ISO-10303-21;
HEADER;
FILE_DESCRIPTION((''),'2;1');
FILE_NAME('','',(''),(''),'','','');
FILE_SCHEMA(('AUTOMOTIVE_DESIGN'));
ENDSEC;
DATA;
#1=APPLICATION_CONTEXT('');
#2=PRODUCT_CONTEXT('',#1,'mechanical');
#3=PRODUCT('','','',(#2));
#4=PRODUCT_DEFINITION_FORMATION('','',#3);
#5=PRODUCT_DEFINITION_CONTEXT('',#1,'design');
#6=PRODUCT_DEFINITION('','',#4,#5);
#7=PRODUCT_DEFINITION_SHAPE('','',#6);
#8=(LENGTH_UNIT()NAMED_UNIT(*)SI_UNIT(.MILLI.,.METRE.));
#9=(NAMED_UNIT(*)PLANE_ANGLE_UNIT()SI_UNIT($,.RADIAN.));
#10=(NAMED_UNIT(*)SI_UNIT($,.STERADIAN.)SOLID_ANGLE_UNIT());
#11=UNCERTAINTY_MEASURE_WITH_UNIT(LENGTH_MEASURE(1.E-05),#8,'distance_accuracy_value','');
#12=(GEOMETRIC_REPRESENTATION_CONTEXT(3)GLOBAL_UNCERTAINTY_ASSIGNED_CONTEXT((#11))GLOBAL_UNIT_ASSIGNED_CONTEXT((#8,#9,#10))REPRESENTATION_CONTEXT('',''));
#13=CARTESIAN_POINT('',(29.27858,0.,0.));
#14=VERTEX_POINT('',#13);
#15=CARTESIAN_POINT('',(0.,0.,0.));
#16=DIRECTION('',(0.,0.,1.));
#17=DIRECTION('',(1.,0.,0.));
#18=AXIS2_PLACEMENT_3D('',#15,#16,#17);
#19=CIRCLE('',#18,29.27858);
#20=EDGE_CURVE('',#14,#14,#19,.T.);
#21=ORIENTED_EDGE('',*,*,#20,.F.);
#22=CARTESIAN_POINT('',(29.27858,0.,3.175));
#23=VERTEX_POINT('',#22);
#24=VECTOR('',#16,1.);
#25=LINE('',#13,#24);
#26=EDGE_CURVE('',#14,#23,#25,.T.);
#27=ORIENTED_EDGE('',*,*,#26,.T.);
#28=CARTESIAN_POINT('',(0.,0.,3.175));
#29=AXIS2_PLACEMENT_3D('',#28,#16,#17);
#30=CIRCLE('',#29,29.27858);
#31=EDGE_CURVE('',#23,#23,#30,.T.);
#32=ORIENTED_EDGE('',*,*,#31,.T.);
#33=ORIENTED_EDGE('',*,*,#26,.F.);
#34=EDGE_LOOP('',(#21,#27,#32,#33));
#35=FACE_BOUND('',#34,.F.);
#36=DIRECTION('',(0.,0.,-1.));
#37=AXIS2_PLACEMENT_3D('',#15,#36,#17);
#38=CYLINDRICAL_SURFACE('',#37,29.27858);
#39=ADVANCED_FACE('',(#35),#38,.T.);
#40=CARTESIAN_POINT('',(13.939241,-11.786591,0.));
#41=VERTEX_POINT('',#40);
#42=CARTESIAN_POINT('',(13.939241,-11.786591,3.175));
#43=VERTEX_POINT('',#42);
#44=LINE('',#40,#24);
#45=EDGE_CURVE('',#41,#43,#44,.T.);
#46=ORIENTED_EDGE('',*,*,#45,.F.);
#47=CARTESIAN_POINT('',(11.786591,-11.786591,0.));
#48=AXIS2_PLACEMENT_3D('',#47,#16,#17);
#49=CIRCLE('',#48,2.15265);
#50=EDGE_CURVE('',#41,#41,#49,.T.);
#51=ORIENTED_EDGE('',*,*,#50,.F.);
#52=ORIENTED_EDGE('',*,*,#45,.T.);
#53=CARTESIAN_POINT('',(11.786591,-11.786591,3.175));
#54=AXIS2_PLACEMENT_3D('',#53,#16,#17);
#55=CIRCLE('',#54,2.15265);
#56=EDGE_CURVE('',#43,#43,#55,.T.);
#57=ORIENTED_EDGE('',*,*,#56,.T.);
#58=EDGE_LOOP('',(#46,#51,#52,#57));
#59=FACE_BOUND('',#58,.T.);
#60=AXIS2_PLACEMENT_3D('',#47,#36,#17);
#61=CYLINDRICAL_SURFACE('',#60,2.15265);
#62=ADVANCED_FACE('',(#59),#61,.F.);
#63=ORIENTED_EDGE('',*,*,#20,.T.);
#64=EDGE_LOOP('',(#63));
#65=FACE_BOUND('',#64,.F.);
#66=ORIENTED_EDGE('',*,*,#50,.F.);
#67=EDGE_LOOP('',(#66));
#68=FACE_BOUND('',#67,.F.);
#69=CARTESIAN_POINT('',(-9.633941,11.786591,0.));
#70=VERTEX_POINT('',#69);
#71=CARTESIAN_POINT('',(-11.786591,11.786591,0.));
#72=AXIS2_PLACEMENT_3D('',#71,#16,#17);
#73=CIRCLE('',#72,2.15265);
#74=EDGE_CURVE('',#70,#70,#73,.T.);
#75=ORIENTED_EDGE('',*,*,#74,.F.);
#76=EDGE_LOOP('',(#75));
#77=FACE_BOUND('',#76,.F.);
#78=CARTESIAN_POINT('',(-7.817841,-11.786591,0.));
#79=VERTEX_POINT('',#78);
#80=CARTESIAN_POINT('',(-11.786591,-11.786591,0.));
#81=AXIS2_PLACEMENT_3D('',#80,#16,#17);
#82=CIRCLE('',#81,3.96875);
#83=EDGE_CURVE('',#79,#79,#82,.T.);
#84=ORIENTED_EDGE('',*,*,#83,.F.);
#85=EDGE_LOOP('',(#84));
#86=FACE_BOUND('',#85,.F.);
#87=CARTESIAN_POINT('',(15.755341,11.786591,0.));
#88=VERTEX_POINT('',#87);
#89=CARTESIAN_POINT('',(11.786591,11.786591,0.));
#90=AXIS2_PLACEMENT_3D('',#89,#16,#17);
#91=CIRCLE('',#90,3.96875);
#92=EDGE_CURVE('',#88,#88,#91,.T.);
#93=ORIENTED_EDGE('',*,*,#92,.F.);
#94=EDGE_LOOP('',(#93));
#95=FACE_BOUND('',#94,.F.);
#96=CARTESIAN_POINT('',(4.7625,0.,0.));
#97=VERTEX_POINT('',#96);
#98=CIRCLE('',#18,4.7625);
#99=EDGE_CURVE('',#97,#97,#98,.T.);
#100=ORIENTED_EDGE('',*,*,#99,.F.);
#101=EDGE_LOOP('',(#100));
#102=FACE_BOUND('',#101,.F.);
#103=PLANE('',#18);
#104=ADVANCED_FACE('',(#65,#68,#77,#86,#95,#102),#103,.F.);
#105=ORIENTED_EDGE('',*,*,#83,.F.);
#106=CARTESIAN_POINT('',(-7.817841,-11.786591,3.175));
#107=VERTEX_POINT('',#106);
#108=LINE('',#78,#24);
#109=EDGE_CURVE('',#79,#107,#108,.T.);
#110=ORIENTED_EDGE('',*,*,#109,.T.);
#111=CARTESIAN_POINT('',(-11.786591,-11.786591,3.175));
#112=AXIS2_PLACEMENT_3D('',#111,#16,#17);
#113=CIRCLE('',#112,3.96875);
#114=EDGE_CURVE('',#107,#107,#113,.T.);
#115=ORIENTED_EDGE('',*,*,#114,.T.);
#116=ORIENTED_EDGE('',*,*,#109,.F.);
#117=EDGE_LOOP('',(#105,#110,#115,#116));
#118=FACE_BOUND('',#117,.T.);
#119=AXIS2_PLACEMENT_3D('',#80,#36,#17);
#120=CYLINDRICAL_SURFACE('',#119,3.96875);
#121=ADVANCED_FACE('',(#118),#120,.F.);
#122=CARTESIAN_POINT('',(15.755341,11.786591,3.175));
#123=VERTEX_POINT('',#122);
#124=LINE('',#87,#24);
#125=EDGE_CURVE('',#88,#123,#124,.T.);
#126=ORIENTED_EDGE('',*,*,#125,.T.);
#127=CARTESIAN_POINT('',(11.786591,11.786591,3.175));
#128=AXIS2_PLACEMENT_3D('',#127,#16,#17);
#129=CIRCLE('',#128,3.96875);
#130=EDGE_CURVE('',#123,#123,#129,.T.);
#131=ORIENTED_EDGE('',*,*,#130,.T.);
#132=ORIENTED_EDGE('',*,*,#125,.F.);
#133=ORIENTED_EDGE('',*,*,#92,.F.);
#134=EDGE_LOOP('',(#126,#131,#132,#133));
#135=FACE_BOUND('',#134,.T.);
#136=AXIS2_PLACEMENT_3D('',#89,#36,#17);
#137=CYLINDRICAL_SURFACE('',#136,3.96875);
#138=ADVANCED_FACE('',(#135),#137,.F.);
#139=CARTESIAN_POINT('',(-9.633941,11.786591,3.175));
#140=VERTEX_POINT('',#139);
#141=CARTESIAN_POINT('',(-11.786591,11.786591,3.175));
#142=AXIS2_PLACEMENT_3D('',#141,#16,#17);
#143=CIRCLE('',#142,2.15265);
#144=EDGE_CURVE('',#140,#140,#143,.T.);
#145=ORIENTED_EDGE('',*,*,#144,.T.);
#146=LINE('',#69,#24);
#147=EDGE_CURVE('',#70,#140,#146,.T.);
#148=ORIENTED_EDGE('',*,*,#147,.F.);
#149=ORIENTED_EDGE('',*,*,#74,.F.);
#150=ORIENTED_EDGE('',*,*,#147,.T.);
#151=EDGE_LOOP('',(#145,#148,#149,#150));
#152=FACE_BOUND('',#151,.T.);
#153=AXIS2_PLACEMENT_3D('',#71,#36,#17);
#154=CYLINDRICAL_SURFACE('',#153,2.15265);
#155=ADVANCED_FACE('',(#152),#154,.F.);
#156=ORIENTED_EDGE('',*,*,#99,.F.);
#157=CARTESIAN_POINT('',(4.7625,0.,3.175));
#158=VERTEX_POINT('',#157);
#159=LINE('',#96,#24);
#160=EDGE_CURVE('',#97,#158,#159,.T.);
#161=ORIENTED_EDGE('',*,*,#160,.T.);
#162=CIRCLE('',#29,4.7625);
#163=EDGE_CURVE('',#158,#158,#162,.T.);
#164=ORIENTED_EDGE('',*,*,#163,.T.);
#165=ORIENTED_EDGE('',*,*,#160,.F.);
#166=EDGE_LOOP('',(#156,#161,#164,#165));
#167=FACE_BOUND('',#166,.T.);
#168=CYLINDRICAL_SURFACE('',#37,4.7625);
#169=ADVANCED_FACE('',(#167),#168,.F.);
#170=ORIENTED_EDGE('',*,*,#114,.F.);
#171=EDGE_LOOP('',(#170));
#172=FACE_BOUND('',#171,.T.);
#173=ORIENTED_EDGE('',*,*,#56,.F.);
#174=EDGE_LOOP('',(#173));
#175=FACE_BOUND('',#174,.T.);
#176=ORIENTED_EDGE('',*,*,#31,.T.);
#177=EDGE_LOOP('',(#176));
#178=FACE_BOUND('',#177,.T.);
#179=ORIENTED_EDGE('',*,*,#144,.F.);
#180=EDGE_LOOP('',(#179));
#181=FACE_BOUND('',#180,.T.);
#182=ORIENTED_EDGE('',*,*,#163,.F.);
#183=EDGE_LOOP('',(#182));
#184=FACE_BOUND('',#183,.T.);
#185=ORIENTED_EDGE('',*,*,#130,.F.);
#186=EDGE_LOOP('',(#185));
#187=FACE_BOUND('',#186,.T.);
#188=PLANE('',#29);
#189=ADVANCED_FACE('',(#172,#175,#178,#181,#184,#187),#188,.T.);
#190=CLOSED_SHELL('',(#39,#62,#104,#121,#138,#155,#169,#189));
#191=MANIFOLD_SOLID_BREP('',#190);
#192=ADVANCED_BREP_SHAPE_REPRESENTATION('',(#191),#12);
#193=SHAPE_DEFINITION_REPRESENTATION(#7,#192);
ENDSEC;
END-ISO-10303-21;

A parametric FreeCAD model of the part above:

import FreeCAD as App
import Part
import Sketcher
Q = App.Units.Quantity

doc = App.newDocument("Part")
params = doc.addObject("Spreadsheet::Sheet", "Params")
for row, (alias, value) in enumerate([
    ("sketch1_diameter", "0.3125 in"),
    ("sketch1_diameter2", "0.375 in"),
    ("pad1_length", "0.125 in"),
], start=1):
    params.set(f"A{row}", alias)
    params.set(f"B{row}", "=" + value)
    params.setAlias(f"B{row}", alias)

body = doc.addObject("PartDesign::Body", "Body")

# Sketch on XY plane
sketch1 = doc.addObject("Sketcher::SketchObject", "Sketch")
body.addObject(sketch1)
sketch1.AttachmentSupport = (doc.XY_Plane, [""])
sketch1.MapMode = "FlatFace"
sketch1.addGeometry(Part.Circle(App.Vector(0, 0, 0), App.Vector(0, 0, 1), 29.3), False)
sketch1.addGeometry(Part.Circle(App.Vector(-11.8, -11.8, 0), App.Vector(0, 0, 1), 4), False)
sketch1.addGeometry(Part.Circle(App.Vector(11.8, -11.8, 0), App.Vector(0, 0, 1), 2.2), False)
sketch1.addGeometry(Part.Circle(App.Vector(-11.8, 11.8, 0), App.Vector(0, 0, 1), 2.2), False)
sketch1.addGeometry(Part.Circle(App.Vector(0, 0, 0), App.Vector(0, 0, 1), 4.8), False)
sketch1.addGeometry(Part.Circle(App.Vector(11.8, 11.8, 0), App.Vector(0, 0, 1), 4), False)
sketch1.addConstraint(Sketcher.Constraint("Coincident", 0, 3, -1, 1))
sketch1.addConstraint(Sketcher.Constraint("Coincident", 4, 3, -1, 1))
sketch1.addConstraint(Sketcher.Constraint("Equal", 2, 3))
sketch1.addConstraint(Sketcher.Constraint("Equal", 1, 5))
sketch1.addConstraint(Sketcher.Constraint("Symmetric", 2, 3, 3, 3, -1, 1))
sketch1.addConstraint(Sketcher.Constraint("Symmetric", 1, 3, 5, 3, -1, 1))
sketch1.addConstraint(Sketcher.Constraint("Symmetric", 1, 3, 2, 3, -2))
sketch1.addConstraint(Sketcher.Constraint("Diameter", 1, Q("0.3125 in")))
sketch1.addConstraint(Sketcher.Constraint("Diameter", 4, Q("0.375 in")))
sketch1.addConstraint(Sketcher.Constraint("Diameter", 0, Q("2.3054 in")))
sketch1.addConstraint(Sketcher.Constraint("Diameter", 2, Q("0.1695 in")))
sketch1.addConstraint(Sketcher.Constraint("DistanceX", 1, 3, -1, 1, Q("11.786591 mm")))
sketch1.addConstraint(Sketcher.Constraint("DistanceY", 1, 3, -1, 1, Q("11.786591 mm")))
sketch1.setExpression("Constraints[7]", "Params.sketch1_diameter")
sketch1.setExpression("Constraints[8]", "Params.sketch1_diameter2")
pad1 = doc.addObject("PartDesign::Pad", "Pad")
body.addObject(pad1)
pad1.Profile = sketch1
pad1.setExpression("Length", "Params.pad1_length")

doc.recompute()
